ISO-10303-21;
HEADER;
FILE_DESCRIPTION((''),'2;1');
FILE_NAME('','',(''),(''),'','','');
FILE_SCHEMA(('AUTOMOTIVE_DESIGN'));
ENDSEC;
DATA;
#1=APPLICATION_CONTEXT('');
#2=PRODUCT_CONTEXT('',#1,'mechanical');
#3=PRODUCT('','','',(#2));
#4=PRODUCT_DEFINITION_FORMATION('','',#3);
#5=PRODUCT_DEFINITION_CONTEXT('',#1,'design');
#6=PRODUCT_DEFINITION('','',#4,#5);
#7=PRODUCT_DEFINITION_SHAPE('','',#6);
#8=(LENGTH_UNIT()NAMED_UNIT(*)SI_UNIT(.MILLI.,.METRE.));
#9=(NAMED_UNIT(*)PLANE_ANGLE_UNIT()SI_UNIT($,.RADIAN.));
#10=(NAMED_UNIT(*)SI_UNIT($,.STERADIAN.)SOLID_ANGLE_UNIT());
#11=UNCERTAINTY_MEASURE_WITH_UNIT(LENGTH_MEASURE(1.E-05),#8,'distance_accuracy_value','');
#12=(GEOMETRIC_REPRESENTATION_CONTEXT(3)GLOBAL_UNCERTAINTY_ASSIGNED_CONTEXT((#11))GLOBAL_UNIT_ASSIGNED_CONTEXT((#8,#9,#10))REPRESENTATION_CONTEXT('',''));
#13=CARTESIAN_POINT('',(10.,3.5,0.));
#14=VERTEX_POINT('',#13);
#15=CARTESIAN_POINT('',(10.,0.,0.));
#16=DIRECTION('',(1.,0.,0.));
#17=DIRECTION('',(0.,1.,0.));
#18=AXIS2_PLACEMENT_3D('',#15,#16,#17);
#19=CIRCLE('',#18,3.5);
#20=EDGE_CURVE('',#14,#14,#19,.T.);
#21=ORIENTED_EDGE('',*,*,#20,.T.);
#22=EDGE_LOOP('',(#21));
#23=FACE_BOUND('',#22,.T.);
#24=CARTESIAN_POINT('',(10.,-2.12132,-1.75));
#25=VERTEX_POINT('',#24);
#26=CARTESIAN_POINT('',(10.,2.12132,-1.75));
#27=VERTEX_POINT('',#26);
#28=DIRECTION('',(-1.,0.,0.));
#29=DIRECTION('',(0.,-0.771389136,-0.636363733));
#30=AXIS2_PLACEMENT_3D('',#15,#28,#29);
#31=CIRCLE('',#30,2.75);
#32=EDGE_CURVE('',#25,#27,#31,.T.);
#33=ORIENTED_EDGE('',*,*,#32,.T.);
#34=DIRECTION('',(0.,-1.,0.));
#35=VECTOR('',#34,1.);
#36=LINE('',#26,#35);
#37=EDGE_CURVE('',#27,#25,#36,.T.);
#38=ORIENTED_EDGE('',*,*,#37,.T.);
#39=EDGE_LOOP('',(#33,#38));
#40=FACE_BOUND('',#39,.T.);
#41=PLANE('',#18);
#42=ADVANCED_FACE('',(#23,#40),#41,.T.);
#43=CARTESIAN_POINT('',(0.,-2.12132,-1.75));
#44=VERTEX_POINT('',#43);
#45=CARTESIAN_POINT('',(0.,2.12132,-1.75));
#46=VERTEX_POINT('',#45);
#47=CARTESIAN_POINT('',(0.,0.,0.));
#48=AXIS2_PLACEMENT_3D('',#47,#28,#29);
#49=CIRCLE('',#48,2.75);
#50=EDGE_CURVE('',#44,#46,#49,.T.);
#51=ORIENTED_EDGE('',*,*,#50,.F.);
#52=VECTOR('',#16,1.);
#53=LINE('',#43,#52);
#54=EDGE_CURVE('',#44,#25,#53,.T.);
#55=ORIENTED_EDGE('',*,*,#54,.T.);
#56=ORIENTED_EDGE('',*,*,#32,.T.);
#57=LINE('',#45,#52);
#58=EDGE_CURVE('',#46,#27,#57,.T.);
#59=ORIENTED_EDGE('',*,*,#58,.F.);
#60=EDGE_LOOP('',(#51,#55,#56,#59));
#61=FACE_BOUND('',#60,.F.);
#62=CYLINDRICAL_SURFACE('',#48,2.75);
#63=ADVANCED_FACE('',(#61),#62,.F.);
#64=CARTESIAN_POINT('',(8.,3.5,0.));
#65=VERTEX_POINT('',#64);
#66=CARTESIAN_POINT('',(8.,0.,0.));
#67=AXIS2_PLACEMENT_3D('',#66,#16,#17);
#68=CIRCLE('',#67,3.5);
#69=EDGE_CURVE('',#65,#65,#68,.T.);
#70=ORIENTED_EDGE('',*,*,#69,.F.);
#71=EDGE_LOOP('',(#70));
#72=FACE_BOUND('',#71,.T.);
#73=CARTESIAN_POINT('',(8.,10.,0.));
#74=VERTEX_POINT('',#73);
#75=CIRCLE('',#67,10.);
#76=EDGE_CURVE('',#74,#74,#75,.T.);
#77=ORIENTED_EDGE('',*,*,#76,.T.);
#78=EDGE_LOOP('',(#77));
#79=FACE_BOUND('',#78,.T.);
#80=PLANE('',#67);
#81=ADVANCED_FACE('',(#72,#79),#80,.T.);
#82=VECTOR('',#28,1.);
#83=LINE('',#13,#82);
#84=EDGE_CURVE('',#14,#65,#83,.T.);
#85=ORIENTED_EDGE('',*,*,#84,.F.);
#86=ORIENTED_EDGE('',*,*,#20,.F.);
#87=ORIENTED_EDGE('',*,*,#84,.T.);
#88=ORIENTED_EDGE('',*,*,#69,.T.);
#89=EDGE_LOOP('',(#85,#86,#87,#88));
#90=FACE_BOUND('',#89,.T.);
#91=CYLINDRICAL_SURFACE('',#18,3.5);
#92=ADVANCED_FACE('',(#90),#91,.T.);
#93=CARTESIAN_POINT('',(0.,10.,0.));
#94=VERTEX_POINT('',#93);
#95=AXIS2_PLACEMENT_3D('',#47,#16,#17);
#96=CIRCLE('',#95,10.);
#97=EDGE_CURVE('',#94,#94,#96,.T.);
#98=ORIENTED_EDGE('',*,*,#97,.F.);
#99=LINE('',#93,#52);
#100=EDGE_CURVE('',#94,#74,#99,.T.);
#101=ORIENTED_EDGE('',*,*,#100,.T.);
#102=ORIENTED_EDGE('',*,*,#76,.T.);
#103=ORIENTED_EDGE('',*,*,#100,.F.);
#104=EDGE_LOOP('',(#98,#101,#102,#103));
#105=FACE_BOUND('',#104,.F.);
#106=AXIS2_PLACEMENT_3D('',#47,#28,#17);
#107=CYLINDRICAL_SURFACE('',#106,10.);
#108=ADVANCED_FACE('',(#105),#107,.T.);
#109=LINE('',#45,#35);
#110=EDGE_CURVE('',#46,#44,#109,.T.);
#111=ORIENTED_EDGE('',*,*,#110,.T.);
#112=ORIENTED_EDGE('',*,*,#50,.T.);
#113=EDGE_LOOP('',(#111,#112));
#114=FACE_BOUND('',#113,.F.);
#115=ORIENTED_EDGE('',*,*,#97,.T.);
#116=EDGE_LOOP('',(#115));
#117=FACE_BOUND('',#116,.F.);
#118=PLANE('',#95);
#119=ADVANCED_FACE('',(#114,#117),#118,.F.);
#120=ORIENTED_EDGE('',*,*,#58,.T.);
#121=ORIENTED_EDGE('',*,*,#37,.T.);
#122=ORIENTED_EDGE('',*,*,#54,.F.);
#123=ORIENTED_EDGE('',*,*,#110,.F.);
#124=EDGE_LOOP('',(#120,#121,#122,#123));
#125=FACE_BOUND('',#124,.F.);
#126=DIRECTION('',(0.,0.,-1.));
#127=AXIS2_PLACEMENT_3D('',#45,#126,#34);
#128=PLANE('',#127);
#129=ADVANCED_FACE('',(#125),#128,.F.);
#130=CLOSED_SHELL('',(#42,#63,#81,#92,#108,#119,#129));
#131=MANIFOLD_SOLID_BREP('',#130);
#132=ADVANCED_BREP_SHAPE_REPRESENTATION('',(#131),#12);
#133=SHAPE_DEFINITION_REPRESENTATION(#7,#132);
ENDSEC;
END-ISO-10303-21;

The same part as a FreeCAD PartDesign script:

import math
import FreeCAD as App
import Part
import Sketcher
Q = App.Units.Quantity

doc = App.newDocument("Part")
body = doc.addObject("PartDesign::Body", "Body")

sketch1 = body.newObject("Sketcher::SketchObject", "Sketch")
sketch1.AttachmentSupport = (doc.getObject("YZ_Plane"), [""])
sketch1.MapMode = "FlatFace"
sketch1.addGeometry([
    Part.Circle(App.Vector(0, 0, 0), App.Vector(0, 0, 1), 10),
    Part.LineSegment(App.Vector(2.12132, -1.75, 0), App.Vector(-2.12132, -1.75, 0)),
    Part.ArcOfCircle(Part.Circle(App.Vector(0, 0, 0), App.Vector(0, 0, 1), 2.75), math.radians(-39.521204), math.radians(219.521204)),
], False)
sketch1.addConstraint([
    Sketcher.Constraint("Coincident", 1, 1, 2, 1),
    Sketcher.Constraint("Coincident", 2, 2, 1, 2),
    Sketcher.Constraint("Horizontal", 1),
    Sketcher.Constraint("Coincident", 0, 3, -1, 1),
    Sketcher.Constraint("Coincident", 2, 3, -1, 1),
    Sketcher.Constraint("Diameter", 0, Q("20 mm")),
    Sketcher.Constraint("Radius", 2, Q("2.75 mm")),
    Sketcher.Constraint("DistanceY", 1, 1, -1, 1, Q("1.75 mm")),
])
pad1 = body.newObject("PartDesign::Pad", "Pad")
pad1.Profile = sketch1
pad1.Length = 10

sketch2 = body.newObject("Sketcher::SketchObject", "Sketch001")
sketch2.AttachmentSupport = (doc.getObject("YZ_Plane"), [""])
sketch2.MapMode = "FlatFace"
sketch2.AttachmentOffset = App.Placement(App.Vector(0, 0, 10), App.Rotation())
sketch2.addGeometry([
    Part.Circle(App.Vector(0, 0, 0), App.Vector(0, 0, 1), 10),
    Part.Circle(App.Vector(0, 0, 0), App.Vector(0, 0, 1), 3.5),
], False)
sketch2.addConstraint([
    Sketcher.Constraint("Coincident", 0, 3, -1, 1),
    Sketcher.Constraint("Coincident", 1, 3, -1, 1),
    Sketcher.Constraint("Diameter", 0, Q("20 mm")),
    Sketcher.Constraint("Diameter", 1, Q("7 mm")),
])
pocket1 = body.newObject("PartDesign::Pocket", "Pocket")
pocket1.Profile = sketch2
pocket1.Length = 2

doc.recompute()
